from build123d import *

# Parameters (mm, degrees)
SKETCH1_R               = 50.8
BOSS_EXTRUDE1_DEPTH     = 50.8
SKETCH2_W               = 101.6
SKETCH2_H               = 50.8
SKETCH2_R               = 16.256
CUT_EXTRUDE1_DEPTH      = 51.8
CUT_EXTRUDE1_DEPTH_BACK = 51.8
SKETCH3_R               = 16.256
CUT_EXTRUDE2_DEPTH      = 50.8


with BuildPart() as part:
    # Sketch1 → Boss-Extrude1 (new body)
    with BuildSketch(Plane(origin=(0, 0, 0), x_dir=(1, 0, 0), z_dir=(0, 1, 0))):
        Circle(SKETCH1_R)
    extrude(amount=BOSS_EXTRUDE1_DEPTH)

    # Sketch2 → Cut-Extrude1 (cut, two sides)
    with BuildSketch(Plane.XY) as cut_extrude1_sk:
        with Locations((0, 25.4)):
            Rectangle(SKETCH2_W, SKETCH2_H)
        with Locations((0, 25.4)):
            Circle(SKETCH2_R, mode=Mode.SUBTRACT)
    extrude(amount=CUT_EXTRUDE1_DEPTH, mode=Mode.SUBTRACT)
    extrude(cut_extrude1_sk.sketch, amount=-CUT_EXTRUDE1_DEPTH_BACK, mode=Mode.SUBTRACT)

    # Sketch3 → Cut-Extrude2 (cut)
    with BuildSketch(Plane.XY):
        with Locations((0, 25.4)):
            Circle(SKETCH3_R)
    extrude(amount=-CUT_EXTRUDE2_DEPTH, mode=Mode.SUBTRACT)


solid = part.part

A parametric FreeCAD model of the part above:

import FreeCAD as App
import Part
import Sketcher
Q = App.Units.Quantity

doc = App.newDocument("Part")
body = doc.addObject("PartDesign::Body", "Body")

# Sketch on XZ plane
sketch1 = body.newObject("Sketcher::SketchObject", "Sketch")
sketch1.AttachmentSupport = (doc.getObject("XZ_Plane"), [""])
sketch1.MapMode = "FlatFace"
sketch1.addGeometry(Part.Circle(App.Vector(0, 0, 0), App.Vector(0, 0, 1), 50.8), False)
sketch1.addConstraint([
    Sketcher.Constraint("Coincident", 0, 3, -1, 1),
    Sketcher.Constraint("Diameter", 0, Q("4 in")),
])
pad1 = body.newObject("PartDesign::Pad", "Pad")
pad1.Profile = sketch1
pad1.Length = Q("2 in")
pad1.Reversed = True

# Sketch on XY plane
sketch2 = body.newObject("Sketcher::SketchObject", "Sketch001")
sketch2.AttachmentSupport = (doc.getObject("XY_Plane"), [""])
sketch2.MapMode = "FlatFace"
sketch2.addGeometry([
    Part.LineSegment(App.Vector(-50.8, 50.8, 0), App.Vector(-50.8, 0, 0)),  # 0
    Part.LineSegment(App.Vector(-50.8, 0, 0), App.Vector(50.8, 0, 0)),  # 1
    Part.LineSegment(App.Vector(50.8, 0, 0), App.Vector(50.8, 50.8, 0)),  # 2
    Part.LineSegment(App.Vector(50.8, 50.8, 0), App.Vector(-50.8, 50.8, 0)),  # 3
    Part.Circle(App.Vector(0, 25.4, 0), App.Vector(0, 0, 1), 16.256),  # 4
], False)
sketch2.addConstraint([
    Sketcher.Constraint("Coincident", 0, 2, 1, 1),
    Sketcher.Constraint("Coincident", 1, 2, 2, 1),
    Sketcher.Constraint("Coincident", 2, 2, 3, 1),
    Sketcher.Constraint("Coincident", 3, 2, 0, 1),
    Sketcher.Constraint("Vertical", 0),
    Sketcher.Constraint("Horizontal", 1),
    Sketcher.Constraint("Vertical", 2),
    Sketcher.Constraint("Horizontal", 3),
    Sketcher.Constraint("Symmetric", 0, 2, 1, 2, -1, 1),
    Sketcher.Constraint("PointOnObject", 4, 3, -2),
    Sketcher.Constraint("Diameter", 4, Q("1.28 in")),
    Sketcher.Constraint("DistanceX", 1, 1, 1, 2, Q("4 in")),
    Sketcher.Constraint("DistanceY", 0, 2, 0, 1, Q("2 in")),
    Sketcher.Constraint("DistanceY", -1, 1, 4, 3, Q("1 in")),
])
pocket1 = body.newObject("PartDesign::Pocket", "Pocket")
pocket1.Profile = sketch2
pocket1.Type = "ThroughAll"
pocket1.Midplane = True

# Sketch on XY plane
sketch3 = body.newObject("Sketcher::SketchObject", "Sketch002")
sketch3.AttachmentSupport = (doc.getObject("XY_Plane"), [""])
sketch3.MapMode = "FlatFace"
sketch3.addGeometry(Part.Circle(App.Vector(0, 25.4, 0), App.Vector(0, 0, 1), 16.256), False)
sketch3.addConstraint([
    Sketcher.Constraint("PointOnObject", 0, 3, -2),
    Sketcher.Constraint("Diameter", 0, Q("1.28 in")),
    Sketcher.Constraint("DistanceY", -1, 1, 0, 3, Q("1 in")),
])
pocket2 = body.newObject("PartDesign::Pocket", "Pocket001")
pocket2.Profile = sketch3
pocket2.Length = Q("2 in")

doc.recompute()
